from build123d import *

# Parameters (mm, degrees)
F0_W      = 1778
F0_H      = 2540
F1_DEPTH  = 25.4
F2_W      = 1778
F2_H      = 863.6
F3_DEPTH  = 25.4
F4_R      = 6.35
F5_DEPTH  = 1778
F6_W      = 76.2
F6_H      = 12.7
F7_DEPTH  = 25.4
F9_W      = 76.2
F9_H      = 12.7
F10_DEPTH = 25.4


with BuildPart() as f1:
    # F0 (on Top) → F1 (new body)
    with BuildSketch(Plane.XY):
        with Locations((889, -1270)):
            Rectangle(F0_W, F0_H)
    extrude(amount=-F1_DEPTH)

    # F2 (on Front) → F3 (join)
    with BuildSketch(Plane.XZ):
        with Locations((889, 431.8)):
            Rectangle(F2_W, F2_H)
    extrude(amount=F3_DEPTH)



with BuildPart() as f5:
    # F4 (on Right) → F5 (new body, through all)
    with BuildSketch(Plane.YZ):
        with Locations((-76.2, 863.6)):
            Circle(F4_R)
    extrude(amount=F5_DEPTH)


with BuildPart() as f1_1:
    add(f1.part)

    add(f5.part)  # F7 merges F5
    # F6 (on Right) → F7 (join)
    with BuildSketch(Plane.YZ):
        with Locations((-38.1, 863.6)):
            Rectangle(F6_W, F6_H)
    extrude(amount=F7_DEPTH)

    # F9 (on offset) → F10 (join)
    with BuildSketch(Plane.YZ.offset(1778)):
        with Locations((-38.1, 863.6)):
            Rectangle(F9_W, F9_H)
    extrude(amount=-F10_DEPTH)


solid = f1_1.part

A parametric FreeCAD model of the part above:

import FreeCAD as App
import Part
import Sketcher
Q = App.Units.Quantity

doc = App.newDocument("Part")
body = doc.addObject("PartDesign::Body", "Body")

sketch1 = body.newObject("Sketcher::SketchObject", "Sketch")
sketch1.AttachmentSupport = (doc.getObject("XY_Plane"), [""])
sketch1.MapMode = "FlatFace"
sketch1.addGeometry([
    Part.LineSegment(App.Vector(0, 0, 0), App.Vector(0, -2540, 0)),
    Part.LineSegment(App.Vector(0, -2540, 0), App.Vector(1778, -2540, 0)),
    Part.LineSegment(App.Vector(1778, -2540, 0), App.Vector(1778, 0, 0)),
    Part.LineSegment(App.Vector(1778, 0, 0), App.Vector(0, 0, 0)),
], False)
sketch1.addConstraint([
    Sketcher.Constraint("Coincident", 0, 2, 1, 1),
    Sketcher.Constraint("Coincident", 1, 2, 2, 1),
    Sketcher.Constraint("Coincident", 2, 2, 3, 1),
    Sketcher.Constraint("Coincident", 3, 2, 0, 1),
    Sketcher.Constraint("Vertical", 0),
    Sketcher.Constraint("Horizontal", 1),
    Sketcher.Constraint("Vertical", 2),
    Sketcher.Constraint("Horizontal", 3),
    Sketcher.Constraint("Coincident", 3, 2, -1, 1),
    Sketcher.Constraint("DistanceX", 1, 1, 1, 2, Q("70 in")),
    Sketcher.Constraint("DistanceY", 0, 2, 0, 1, Q("100 in")),
])
pad1 = body.newObject("PartDesign::Pad", "Pad")
pad1.Profile = sketch1
pad1.Length = Q("1 in")
pad1.Reversed = True

sketch2 = body.newObject("Sketcher::SketchObject", "Sketch001")
sketch2.AttachmentSupport = (doc.getObject("XZ_Plane"), [""])
sketch2.MapMode = "FlatFace"
sketch2.addGeometry([
    Part.LineSegment(App.Vector(0, 864, 0), App.Vector(0, 0, 0)),
    Part.LineSegment(App.Vector(0, 0, 0), App.Vector(1778, 0, 0)),
    Part.LineSegment(App.Vector(1778, 0, 0), App.Vector(1778, 864, 0)),
    Part.LineSegment(App.Vector(1778, 864, 0), App.Vector(0, 864, 0)),
], False)
sketch2.addConstraint([
    Sketcher.Constraint("Coincident", 0, 2, 1, 1),
    Sketcher.Constraint("Coincident", 1, 2, 2, 1),
    Sketcher.Constraint("Coincident", 2, 2, 3, 1),
    Sketcher.Constraint("Coincident", 3, 2, 0, 1),
    Sketcher.Constraint("Vertical", 0),
    Sketcher.Constraint("Horizontal", 1),
    Sketcher.Constraint("Vertical", 2),
    Sketcher.Constraint("Horizontal", 3),
    Sketcher.Constraint("Coincident", 0, 2, -1, 1),
    Sketcher.Constraint("DistanceX", 1, 1, 1, 2, Q("70 in")),
    Sketcher.Constraint("DistanceY", 0, 2, 0, 1, Q("34 in")),
])
pad2 = body.newObject("PartDesign::Pad", "Pad001")
pad2.Profile = sketch2
pad2.Length = Q("1 in")
body2 = doc.addObject("PartDesign::Body", "Body001")

sketch3 = body2.newObject("Sketcher::SketchObject", "Sketch002")
sketch3.AttachmentSupport = (doc.getObject("YZ_Plane001"), [""])
sketch3.MapMode = "FlatFace"
sketch3.addGeometry(Part.Circle(App.Vector(-76, 864, 0), App.Vector(0, 0, 1), 6), False)
sketch3.addConstraint([
    Sketcher.Constraint("Diameter", 0, Q("0.5 in")),
    Sketcher.Constraint("DistanceX", 0, 3, -1, 1, Q("3 in")),
    Sketcher.Constraint("DistanceY", -1, 1, 0, 3, Q("34 in")),
])
pad3 = body2.newObject("PartDesign::Pad", "Pad002")
pad3.Profile = sketch3
pad3.Length = Q("70 in")
body.AllowCompound = True
doc.recompute()

boolean = body.newObject("PartDesign::Boolean", "Boolean")
boolean.Type = "Fuse"
boolean.addObjects([body2])

sketch4 = body.newObject("Sketcher::SketchObject", "Sketch003")
sketch4.AttachmentSupport = (doc.getObject("YZ_Plane"), [""])
sketch4.MapMode = "FlatFace"
sketch4.addGeometry([
    Part.LineSegment(App.Vector(-76, 870, 0), App.Vector(-76, 857, 0)),
    Part.LineSegment(App.Vector(-76, 857, 0), App.Vector(0, 857, 0)),
    Part.LineSegment(App.Vector(0, 857, 0), App.Vector(0, 870, 0)),
    Part.LineSegment(App.Vector(0, 870, 0), App.Vector(-76, 870, 0)),
], False)
sketch4.addConstraint([
    Sketcher.Constraint("Coincident", 0, 2, 1, 1),
    Sketcher.Constraint("Coincident", 1, 2, 2, 1),
    Sketcher.Constraint("Coincident", 2, 2, 3, 1),
    Sketcher.Constraint("Coincident", 3, 2, 0, 1),
    Sketcher.Constraint("Vertical", 0),
    Sketcher.Constraint("Horizontal", 1),
    Sketcher.Constraint("Vertical", 2),
    Sketcher.Constraint("Horizontal", 3),
    Sketcher.Constraint("PointOnObject", 1, 2, -2),
    Sketcher.Constraint("DistanceX", 1, 1, 1, 2, Q("3 in")),
    Sketcher.Constraint("DistanceY", 0, 2, 0, 1, Q("0.5 in")),
    Sketcher.Constraint("DistanceY", -1, 1, 0, 2, Q("33.75 in")),
])
pad4 = body.newObject("PartDesign::Pad", "Pad003")
pad4.Profile = sketch4
pad4.Length = Q("1 in")

sketch5 = body.newObject("Sketcher::SketchObject", "Sketch004")
sketch5.AttachmentSupport = (doc.getObject("YZ_Plane"), [""])
sketch5.MapMode = "FlatFace"
sketch5.AttachmentOffset = App.Placement(App.Vector(0, 0, 70 * 25.4), App.Rotation())
sketch5.addGeometry([
    Part.LineSegment(App.Vector(-76, 870, 0), App.Vector(-76, 857, 0)),
    Part.LineSegment(App.Vector(-76, 857, 0), App.Vector(0, 857, 0)),
    Part.LineSegment(App.Vector(0, 857, 0), App.Vector(0, 870, 0)),
    Part.LineSegment(App.Vector(0, 870, 0), App.Vector(-76, 870, 0)),
], False)
sketch5.addConstraint([
    Sketcher.Constraint("Coincident", 0, 2, 1, 1),
    Sketcher.Constraint("Coincident", 1, 2, 2, 1),
    Sketcher.Constraint("Coincident", 2, 2, 3, 1),
    Sketcher.Constraint("Coincident", 3, 2, 0, 1),
    Sketcher.Constraint("Vertical", 0),
    Sketcher.Constraint("Horizontal", 1),
    Sketcher.Constraint("Vertical", 2),
    Sketcher.Constraint("Horizontal", 3),
    Sketcher.Constraint("PointOnObject", 1, 2, -2),
    Sketcher.Constraint("DistanceX", 1, 1, 1, 2, Q("3 in")),
    Sketcher.Constraint("DistanceY", 0, 2, 0, 1, Q("0.5 in")),
    Sketcher.Constraint("DistanceY", -1, 1, 0, 2, Q("33.75 in")),
])
pad5 = body.newObject("PartDesign::Pad", "Pad004")
pad5.Profile = sketch5
pad5.Length = Q("1 in")
pad5.Reversed = True

doc.recompute()
